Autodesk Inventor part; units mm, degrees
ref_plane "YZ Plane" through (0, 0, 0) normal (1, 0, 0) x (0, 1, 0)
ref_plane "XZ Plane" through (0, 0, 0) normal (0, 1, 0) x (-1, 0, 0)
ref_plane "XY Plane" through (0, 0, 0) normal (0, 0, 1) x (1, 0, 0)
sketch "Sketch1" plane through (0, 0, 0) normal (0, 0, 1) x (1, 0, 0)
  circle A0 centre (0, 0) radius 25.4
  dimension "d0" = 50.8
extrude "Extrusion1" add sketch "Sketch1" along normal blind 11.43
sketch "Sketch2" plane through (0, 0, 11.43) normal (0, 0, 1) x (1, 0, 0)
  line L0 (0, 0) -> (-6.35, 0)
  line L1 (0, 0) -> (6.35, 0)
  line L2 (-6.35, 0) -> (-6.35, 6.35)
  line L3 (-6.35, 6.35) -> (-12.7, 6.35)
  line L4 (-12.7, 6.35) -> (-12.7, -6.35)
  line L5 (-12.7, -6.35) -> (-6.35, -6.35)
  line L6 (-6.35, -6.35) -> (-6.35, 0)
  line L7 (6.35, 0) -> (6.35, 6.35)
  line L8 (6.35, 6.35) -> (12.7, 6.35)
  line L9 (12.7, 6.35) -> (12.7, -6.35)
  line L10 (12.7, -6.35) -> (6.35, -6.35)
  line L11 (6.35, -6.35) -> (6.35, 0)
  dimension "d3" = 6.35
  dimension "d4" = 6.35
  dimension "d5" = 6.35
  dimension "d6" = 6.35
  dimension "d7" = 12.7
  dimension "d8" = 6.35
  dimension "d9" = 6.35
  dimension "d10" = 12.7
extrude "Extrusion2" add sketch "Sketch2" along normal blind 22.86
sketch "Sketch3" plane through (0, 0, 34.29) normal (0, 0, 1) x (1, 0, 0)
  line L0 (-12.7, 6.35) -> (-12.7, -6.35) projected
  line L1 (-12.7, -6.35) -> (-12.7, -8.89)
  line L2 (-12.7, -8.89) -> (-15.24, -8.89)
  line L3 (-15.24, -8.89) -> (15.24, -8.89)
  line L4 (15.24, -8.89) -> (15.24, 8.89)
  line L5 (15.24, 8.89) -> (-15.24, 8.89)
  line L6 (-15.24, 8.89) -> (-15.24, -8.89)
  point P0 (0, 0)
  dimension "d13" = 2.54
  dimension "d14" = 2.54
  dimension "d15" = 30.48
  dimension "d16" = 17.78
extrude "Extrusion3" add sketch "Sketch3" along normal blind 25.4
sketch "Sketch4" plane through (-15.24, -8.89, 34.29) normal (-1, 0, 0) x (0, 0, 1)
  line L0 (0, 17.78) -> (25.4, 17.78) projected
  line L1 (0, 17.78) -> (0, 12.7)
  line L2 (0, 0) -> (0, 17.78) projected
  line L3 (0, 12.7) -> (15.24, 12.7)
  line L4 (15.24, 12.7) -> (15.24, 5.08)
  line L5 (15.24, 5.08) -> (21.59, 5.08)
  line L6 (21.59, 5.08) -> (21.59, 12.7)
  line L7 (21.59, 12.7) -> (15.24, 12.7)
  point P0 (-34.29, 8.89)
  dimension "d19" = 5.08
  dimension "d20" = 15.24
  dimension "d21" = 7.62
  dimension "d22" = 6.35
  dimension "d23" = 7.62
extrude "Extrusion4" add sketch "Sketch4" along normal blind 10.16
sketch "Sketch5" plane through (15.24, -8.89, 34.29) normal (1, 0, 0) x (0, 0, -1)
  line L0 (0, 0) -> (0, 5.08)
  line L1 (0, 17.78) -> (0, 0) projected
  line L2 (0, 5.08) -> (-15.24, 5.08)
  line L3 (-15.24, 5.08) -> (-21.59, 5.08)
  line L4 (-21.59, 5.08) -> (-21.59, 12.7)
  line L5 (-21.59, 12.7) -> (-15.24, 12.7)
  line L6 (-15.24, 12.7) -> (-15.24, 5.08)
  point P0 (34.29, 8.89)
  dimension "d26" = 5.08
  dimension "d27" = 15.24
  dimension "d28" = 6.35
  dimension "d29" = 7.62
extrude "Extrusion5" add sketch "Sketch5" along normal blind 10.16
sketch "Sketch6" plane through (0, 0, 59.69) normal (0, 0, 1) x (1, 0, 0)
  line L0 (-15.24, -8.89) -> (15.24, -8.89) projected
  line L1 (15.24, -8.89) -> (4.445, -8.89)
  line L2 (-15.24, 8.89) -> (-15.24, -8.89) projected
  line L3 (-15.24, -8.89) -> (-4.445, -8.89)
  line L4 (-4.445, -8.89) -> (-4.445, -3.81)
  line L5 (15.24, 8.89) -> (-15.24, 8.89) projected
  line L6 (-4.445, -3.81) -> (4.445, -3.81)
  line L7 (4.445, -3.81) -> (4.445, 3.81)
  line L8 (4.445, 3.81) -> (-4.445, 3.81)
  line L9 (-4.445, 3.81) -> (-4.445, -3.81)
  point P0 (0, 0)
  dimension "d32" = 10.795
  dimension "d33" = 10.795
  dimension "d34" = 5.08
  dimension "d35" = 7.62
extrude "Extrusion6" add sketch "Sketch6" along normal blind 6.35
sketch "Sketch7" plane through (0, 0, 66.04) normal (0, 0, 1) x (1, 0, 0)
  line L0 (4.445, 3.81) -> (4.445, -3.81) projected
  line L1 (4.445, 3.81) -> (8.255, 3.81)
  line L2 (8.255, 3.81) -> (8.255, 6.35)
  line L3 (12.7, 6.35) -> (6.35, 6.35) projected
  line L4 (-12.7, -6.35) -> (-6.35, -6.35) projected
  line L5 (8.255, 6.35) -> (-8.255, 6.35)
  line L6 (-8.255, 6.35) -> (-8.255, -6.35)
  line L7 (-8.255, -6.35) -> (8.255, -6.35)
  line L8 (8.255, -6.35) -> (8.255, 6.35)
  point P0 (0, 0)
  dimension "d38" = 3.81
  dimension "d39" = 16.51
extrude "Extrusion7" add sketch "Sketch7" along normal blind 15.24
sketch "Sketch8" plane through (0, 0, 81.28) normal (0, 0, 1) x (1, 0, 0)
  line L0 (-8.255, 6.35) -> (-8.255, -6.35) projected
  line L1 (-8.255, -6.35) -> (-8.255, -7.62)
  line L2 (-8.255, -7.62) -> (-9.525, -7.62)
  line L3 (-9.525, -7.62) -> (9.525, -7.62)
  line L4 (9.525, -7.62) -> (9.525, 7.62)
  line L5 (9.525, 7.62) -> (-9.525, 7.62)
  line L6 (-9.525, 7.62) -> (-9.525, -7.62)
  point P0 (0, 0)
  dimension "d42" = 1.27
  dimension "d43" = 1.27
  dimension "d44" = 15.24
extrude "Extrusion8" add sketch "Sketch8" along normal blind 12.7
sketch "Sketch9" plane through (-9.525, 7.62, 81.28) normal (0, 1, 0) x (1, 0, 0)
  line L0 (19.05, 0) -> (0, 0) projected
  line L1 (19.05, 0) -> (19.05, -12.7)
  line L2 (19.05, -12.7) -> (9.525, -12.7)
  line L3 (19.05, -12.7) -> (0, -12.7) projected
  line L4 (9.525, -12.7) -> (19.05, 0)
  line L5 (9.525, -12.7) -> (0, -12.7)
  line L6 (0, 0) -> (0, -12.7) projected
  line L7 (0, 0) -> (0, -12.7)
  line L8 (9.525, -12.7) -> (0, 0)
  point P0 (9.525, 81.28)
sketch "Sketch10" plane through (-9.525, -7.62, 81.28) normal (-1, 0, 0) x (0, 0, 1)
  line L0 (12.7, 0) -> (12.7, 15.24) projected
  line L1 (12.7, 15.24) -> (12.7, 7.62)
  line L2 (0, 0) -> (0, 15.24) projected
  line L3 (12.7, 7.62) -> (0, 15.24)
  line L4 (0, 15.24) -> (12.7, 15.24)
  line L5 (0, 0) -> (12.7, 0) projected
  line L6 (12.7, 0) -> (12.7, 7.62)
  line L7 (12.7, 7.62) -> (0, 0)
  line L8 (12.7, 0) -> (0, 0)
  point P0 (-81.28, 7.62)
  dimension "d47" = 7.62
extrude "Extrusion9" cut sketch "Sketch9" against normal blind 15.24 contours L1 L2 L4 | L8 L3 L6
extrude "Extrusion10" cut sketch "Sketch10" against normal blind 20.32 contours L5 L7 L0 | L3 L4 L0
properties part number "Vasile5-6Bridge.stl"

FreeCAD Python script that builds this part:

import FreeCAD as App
import Part
import Sketcher
Q = App.Units.Quantity

doc = App.newDocument("Part")
body = doc.addObject("PartDesign::Body", "Body")

# Sketch on XY plane
sketch1 = body.newObject("Sketcher::SketchObject", "Sketch")
sketch1.AttachmentSupport = (doc.getObject("XY_Plane"), [""])
sketch1.MapMode = "FlatFace"
sketch1.addGeometry(Part.Circle(App.Vector(0, 0, 0), App.Vector(0, 0, 1), 25.4), False)
sketch1.addConstraint(Sketcher.Constraint("Coincident", 0, 3, -1, 1))
sketch1.addConstraint(Sketcher.Constraint("Diameter", 0, Q("2 in")))
pad1 = body.newObject("PartDesign::Pad", "Pad")
pad1.Profile = sketch1
pad1.Length = Q("0.45 in")

# Sketch on XY plane
sketch2 = body.newObject("Sketcher::SketchObject", "Sketch001")
sketch2.AttachmentSupport = (doc.getObject("XY_Plane"), [""])
sketch2.MapMode = "FlatFace"
sketch2.AttachmentOffset = App.Placement(App.Vector(0, 0, 0.45 * 25.4), App.Rotation())
sketch2.addGeometry(Part.LineSegment(App.Vector(-6.35, -6.35, 0), App.Vector(-6.35, 6.35, 0)), False)
sketch2.addGeometry(Part.LineSegment(App.Vector(-6.35, 6.35, 0), App.Vector(-12.7, 6.35, 0)), False)
sketch2.addGeometry(Part.LineSegment(App.Vector(-12.7, 6.35, 0), App.Vector(-12.7, -6.35, 0)), False)
sketch2.addGeometry(Part.LineSegment(App.Vector(-12.7, -6.35, 0), App.Vector(-6.35, -6.35, 0)), False)
sketch2.addGeometry(Part.LineSegment(App.Vector(6.35, 6.35, 0), App.Vector(6.35, -6.35, 0)), False)
sketch2.addGeometry(Part.LineSegment(App.Vector(6.35, -6.35, 0), App.Vector(12.7, -6.35, 0)), False)
sketch2.addGeometry(Part.LineSegment(App.Vector(12.7, -6.35, 0), App.Vector(12.7, 6.35, 0)), False)
sketch2.addGeometry(Part.LineSegment(App.Vector(12.7, 6.35, 0), App.Vector(6.35, 6.35, 0)), False)
sketch2.addConstraint(Sketcher.Constraint("Coincident", 0, 2, 1, 1))
sketch2.addConstraint(Sketcher.Constraint("Coincident", 1, 2, 2, 1))
sketch2.addConstraint(Sketcher.Constraint("Coincident", 2, 2, 3, 1))
sketch2.addConstraint(Sketcher.Constraint("Coincident", 3, 2, 0, 1))
sketch2.addConstraint(Sketcher.Constraint("Coincident", 4, 2, 5, 1))
sketch2.addConstraint(Sketcher.Constraint("Coincident", 5, 2, 6, 1))
sketch2.addConstraint(Sketcher.Constraint("Coincident", 6, 2, 7, 1))
sketch2.addConstraint(Sketcher.Constraint("Coincident", 7, 2, 4, 1))
sketch2.addConstraint(Sketcher.Constraint("Vertical", 0))
sketch2.addConstraint(Sketcher.Constraint("Horizontal", 1))
sketch2.addConstraint(Sketcher.Constraint("Vertical", 2))
sketch2.addConstraint(Sketcher.Constraint("Horizontal", 3))
sketch2.addConstraint(Sketcher.Constraint("Vertical", 4))
sketch2.addConstraint(Sketcher.Constraint("Horizontal", 5))
sketch2.addConstraint(Sketcher.Constraint("Vertical", 6))
sketch2.addConstraint(Sketcher.Constraint("Horizontal", 7))
sketch2.addConstraint(Sketcher.Constraint("Symmetric", 0, 2, 4, 2, -1, 1))
sketch2.addConstraint(Sketcher.Constraint("Symmetric", 2, 2, 6, 2, -1, 1))
sketch2.addConstraint(Sketcher.Constraint("Horizontal", 3, 2, 4, 2))
sketch2.addConstraint(Sketcher.Constraint("DistanceY", 0, 1, 0, 2, Q("0.5 in")))
sketch2.addConstraint(Sketcher.Constraint("DistanceX", 1, 2, 1, 1, Q("0.25 in")))
sketch2.addConstraint(Sketcher.Constraint("DistanceX", 1, 2, -1, 1, Q("0.5 in")))
pad2 = body.newObject("PartDesign::Pad", "Pad001")
pad2.Profile = sketch2
pad2.Length = Q("0.9 in")

# Sketch on XY plane
sketch3 = body.newObject("Sketcher::SketchObject", "Sketch002")
sketch3.AttachmentSupport = (doc.getObject("XY_Plane"), [""])
sketch3.MapMode = "FlatFace"
sketch3.AttachmentOffset = App.Placement(App.Vector(0, 0, 1.35 * 25.4), App.Rotation())
sketch3.addGeometry(Part.LineSegment(App.Vector(-15.24, -8.89, 0), App.Vector(15.24, -8.89, 0)), False)
sketch3.addGeometry(Part.LineSegment(App.Vector(15.24, -8.89, 0), App.Vector(15.24, 8.89, 0)), False)
sketch3.addGeometry(Part.LineSegment(App.Vector(15.24, 8.89, 0), App.Vector(-15.24, 8.89, 0)), False)
sketch3.addGeometry(Part.LineSegment(App.Vector(-15.24, 8.89, 0), App.Vector(-15.24, -8.89, 0)), False)
sketch3.addConstraint(Sketcher.Constraint("Coincident", 0, 2, 1, 1))
sketch3.addConstraint(Sketcher.Constraint("Coincident", 1, 2, 2, 1))
sketch3.addConstraint(Sketcher.Constraint("Coincident", 2, 2, 3, 1))
sketch3.addConstraint(Sketcher.Constraint("Coincident", 3, 2, 0, 1))
sketch3.addConstraint(Sketcher.Constraint("Horizontal", 0))
sketch3.addConstraint(Sketcher.Constraint("Vertical", 1))
sketch3.addConstraint(Sketcher.Constraint("Horizontal", 2))
sketch3.addConstraint(Sketcher.Constraint("Vertical", 3))
sketch3.addConstraint(Sketcher.Constraint("Symmetric", 0, 2, 2, 2, -1, 1))
sketch3.addConstraint(Sketcher.Constraint("DistanceX", 0, 1, 0, 2, Q("1.2 in")))
sketch3.addConstraint(Sketcher.Constraint("DistanceY", 1, 1, 1, 2, Q("0.7 in")))
pad3 = body.newObject("PartDesign::Pad", "Pad002")
pad3.Profile = sketch3
pad3.Length = Q("1 in")

# Sketch on YZ plane
sketch4 = body.newObject("Sketcher::SketchObject", "Sketch003")
sketch4.AttachmentSupport = (doc.getObject("YZ_Plane"), [""])
sketch4.MapMode = "FlatFace"
sketch4.AttachmentOffset = App.Placement(App.Vector(0, 0, -0.6 * 25.4), App.Rotation())
sketch4.addGeometry(Part.LineSegment(App.Vector(3.81, 55.88, 0), App.Vector(3.81, 49.53, 0)), False)
sketch4.addGeometry(Part.LineSegment(App.Vector(3.81, 49.53, 0), App.Vector(-3.81, 49.53, 0)), False)
sketch4.addGeometry(Part.LineSegment(App.Vector(-3.81, 49.53, 0), App.Vector(-3.81, 55.88, 0)), False)
sketch4.addGeometry(Part.LineSegment(App.Vector(-3.81, 55.88, 0), App.Vector(3.81, 55.88, 0)), False)
sketch4.addConstraint(Sketcher.Constraint("Coincident", 0, 2, 1, 1))
sketch4.addConstraint(Sketcher.Constraint("Coincident", 1, 2, 2, 1))
sketch4.addConstraint(Sketcher.Constraint("Coincident", 2, 2, 3, 1))
sketch4.addConstraint(Sketcher.Constraint("Coincident", 3, 2, 0, 1))
sketch4.addConstraint(Sketcher.Constraint("Vertical", 0))
sketch4.addConstraint(Sketcher.Constraint("Horizontal", 1))
sketch4.addConstraint(Sketcher.Constraint("Vertical", 2))
sketch4.addConstraint(Sketcher.Constraint("Horizontal", 3))
sketch4.addConstraint(Sketcher.Constraint("DistanceX", 1, 2, 1, 1, Q("0.3 in")))
sketch4.addConstraint(Sketcher.Constraint("DistanceY", 0, 2, 0, 1, Q("0.25 in")))
sketch4.addConstraint(Sketcher.Constraint("DistanceY", -1, 1, 2, 2, Q("2.2 in")))
sketch4.addConstraint(Sketcher.Constraint("DistanceX", -1, 1, 0, 2, Q("0.15 in")))
pad4 = body.newObject("PartDesign::Pad", "Pad003")
pad4.Profile = sketch4
pad4.Length = Q("0.4 in")
pad4.Reversed = True

# Sketch on YZ plane
sketch5 = body.newObject("Sketcher::SketchObject", "Sketch004")
sketch5.AttachmentSupport = (doc.getObject("YZ_Plane"), [""])
sketch5.MapMode = "FlatFace"
sketch5.AttachmentOffset = App.Placement(App.Vector(0, 0, 0.6 * 25.4), App.Rotation())
sketch5.addGeometry(Part.LineSegment(App.Vector(-3.81, 55.88, 0), App.Vector(-3.81, 49.53, 0)), False)
sketch5.addGeometry(Part.LineSegment(App.Vector(-3.81, 49.53, 0), App.Vector(3.81, 49.53, 0)), False)
sketch5.addGeometry(Part.LineSegment(App.Vector(3.81, 49.53, 0), App.Vector(3.81, 55.88, 0)), False)
sketch5.addGeometry(Part.LineSegment(App.Vector(3.81, 55.88, 0), App.Vector(-3.81, 55.88, 0)), False)
sketch5.addConstraint(Sketcher.Constraint("Coincident", 0, 2, 1, 1))
sketch5.addConstraint(Sketcher.Constraint("Coincident", 1, 2, 2, 1))
sketch5.addConstraint(Sketcher.Constraint("Coincident", 2, 2, 3, 1))
sketch5.addConstraint(Sketcher.Constraint("Coincident", 3, 2, 0, 1))
sketch5.addConstraint(Sketcher.Constraint("Vertical", 0))
sketch5.addConstraint(Sketcher.Constraint("Horizontal", 1))
sketch5.addConstraint(Sketcher.Constraint("Vertical", 2))
sketch5.addConstraint(Sketcher.Constraint("Horizontal", 3))
sketch5.addConstraint(Sketcher.Constraint("DistanceX", 1, 1, 1, 2, Q("0.3 in")))
sketch5.addConstraint(Sketcher.Constraint("DistanceY", 0, 2, 0, 1, Q("0.25 in")))
sketch5.addConstraint(Sketcher.Constraint("DistanceY", -1, 1, 2, 2, Q("2.2 in")))
sketch5.addConstraint(Sketcher.Constraint("DistanceX", 0, 2, -1, 1, Q("0.15 in")))
pad5 = body.newObject("PartDesign::Pad", "Pad004")
pad5.Profile = sketch5
pad5.Length = Q("0.4 in")

# Sketch on XY plane
sketch6 = body.newObject("Sketcher::SketchObject", "Sketch005")
sketch6.AttachmentSupport = (doc.getObject("XY_Plane"), [""])
sketch6.MapMode = "FlatFace"
sketch6.AttachmentOffset = App.Placement(App.Vector(0, 0, 2.35 * 25.4), App.Rotation())
sketch6.addGeometry(Part.LineSegment(App.Vector(-4.445, 3.81, 0), App.Vector(-4.445, -3.81, 0)), False)
sketch6.addGeometry(Part.LineSegment(App.Vector(-4.445, -3.81, 0), App.Vector(4.445, -3.81, 0)), False)
sketch6.addGeometry(Part.LineSegment(App.Vector(4.445, -3.81, 0), App.Vector(4.445, 3.81, 0)), False)
sketch6.addGeometry(Part.LineSegment(App.Vector(4.445, 3.81, 0), App.Vector(-4.445, 3.81, 0)), False)
sketch6.addConstraint(Sketcher.Constraint("Coincident", 0, 2, 1, 1))
sketch6.addConstraint(Sketcher.Constraint("Coincident", 1, 2, 2, 1))
sketch6.addConstraint(Sketcher.Constraint("Coincident", 2, 2, 3, 1))
sketch6.addConstraint(Sketcher.Constraint("Coincident", 3, 2, 0, 1))
sketch6.addConstraint(Sketcher.Constraint("Vertical", 0))
sketch6.addConstraint(Sketcher.Constraint("Horizontal", 1))
sketch6.addConstraint(Sketcher.Constraint("Vertical", 2))
sketch6.addConstraint(Sketcher.Constraint("Horizontal", 3))
sketch6.addConstraint(Sketcher.Constraint("Symmetric", 0, 2, 2, 2, -1, 1))
sketch6.addConstraint(Sketcher.Constraint("DistanceY", 0, 2, 0, 1, Q("0.3 in")))
sketch6.addConstraint(Sketcher.Constraint("DistanceX", 1, 1, 1, 2, Q("0.35 in")))
pad6 = body.newObject("PartDesign::Pad", "Pad005")
pad6.Profile = sketch6
pad6.Length = Q("0.25 in")

# Sketch on XY plane
sketch7 = body.newObject("Sketcher::SketchObject", "Sketch006")
sketch7.AttachmentSupport = (doc.getObject("XY_Plane"), [""])
sketch7.MapMode = "FlatFace"
sketch7.AttachmentOffset = App.Placement(App.Vector(0, 0, 2.6 * 25.4), App.Rotation())
sketch7.addGeometry(Part.LineSegment(App.Vector(8.255, -6.35, 0), App.Vector(8.255, 6.35, 0)), False)
sketch7.addGeometry(Part.LineSegment(App.Vector(8.255, 6.35, 0), App.Vector(-8.255, 6.35, 0)), False)
sketch7.addGeometry(Part.LineSegment(App.Vector(-8.255, 6.35, 0), App.Vector(-8.255, -6.35, 0)), False)
sketch7.addGeometry(Part.LineSegment(App.Vector(-8.255, -6.35, 0), App.Vector(8.255, -6.35, 0)), False)
sketch7.addConstraint(Sketcher.Constraint("Coincident", 0, 2, 1, 1))
sketch7.addConstraint(Sketcher.Constraint("Coincident", 1, 2, 2, 1))
sketch7.addConstraint(Sketcher.Constraint("Coincident", 2, 2, 3, 1))
sketch7.addConstraint(Sketcher.Constraint("Coincident", 3, 2, 0, 1))
sketch7.addConstraint(Sketcher.Constraint("Vertical", 0))
sketch7.addConstraint(Sketcher.Constraint("Horizontal", 1))
sketch7.addConstraint(Sketcher.Constraint("Vertical", 2))
sketch7.addConstraint(Sketcher.Constraint("Horizontal", 3))
sketch7.addConstraint(Sketcher.Constraint("Symmetric", 0, 2, 2, 2, -1, 1))
sketch7.addConstraint(Sketcher.Constraint("DistanceX", 1, 2, 1, 1, Q("0.65 in")))
sketch7.addConstraint(Sketcher.Constraint("DistanceY", 0, 1, 0, 2, Q("0.5 in")))
pad7 = body.newObject("PartDesign::Pad", "Pad006")
pad7.Profile = sketch7
pad7.Length = Q("0.6 in")

# Sketch on XY plane
sketch8 = body.newObject("Sketcher::SketchObject", "Sketch007")
sketch8.AttachmentSupport = (doc.getObject("XY_Plane"), [""])
sketch8.MapMode = "FlatFace"
sketch8.AttachmentOffset = App.Placement(App.Vector(0, 0, 3.2 * 25.4), App.Rotation())
sketch8.addGeometry(Part.LineSegment(App.Vector(-9.525, -7.62, 0), App.Vector(9.525, -7.62, 0)), False)
sketch8.addGeometry(Part.LineSegment(App.Vector(9.525, -7.62, 0), App.Vector(9.525, 7.62, 0)), False)
sketch8.addGeometry(Part.LineSegment(App.Vector(9.525, 7.62, 0), App.Vector(-9.525, 7.62, 0)), False)
sketch8.addGeometry(Part.LineSegment(App.Vector(-9.525, 7.62, 0), App.Vector(-9.525, -7.62, 0)), False)
sketch8.addConstraint(Sketcher.Constraint("Coincident", 0, 2, 1, 1))
sketch8.addConstraint(Sketcher.Constraint("Coincident", 1, 2, 2, 1))
sketch8.addConstraint(Sketcher.Constraint("Coincident", 2, 2, 3, 1))
sketch8.addConstraint(Sketcher.Constraint("Coincident", 3, 2, 0, 1))
sketch8.addConstraint(Sketcher.Constraint("Horizontal", 0))
sketch8.addConstraint(Sketcher.Constraint("Vertical", 1))
sketch8.addConstraint(Sketcher.Constraint("Horizontal", 2))
sketch8.addConstraint(Sketcher.Constraint("Vertical", 3))
sketch8.addConstraint(Sketcher.Constraint("Symmetric", 0, 2, 2, 2, -1, 1))
sketch8.addConstraint(Sketcher.Constraint("DistanceY", 1, 1, 1, 2, Q("0.6 in")))
sketch8.addConstraint(Sketcher.Constraint("DistanceX", 0, 1, 0, 2, Q("0.75 in")))
pad8 = body.newObject("PartDesign::Pad", "Pad007")
pad8.Profile = sketch8
pad8.Length = Q("0.5 in")

# Sketch on XZ plane
sketch9 = body.newObject("Sketcher::SketchObject", "Sketch008")
sketch9.AttachmentSupport = (doc.getObject("XZ_Plane"), [""])
sketch9.MapMode = "FlatFace"
sketch9.AttachmentOffset = App.Placement(App.Vector(0, 0, -0.3 * 25.4), App.Rotation())
sketch9.addGeometry(Part.LineSegment(App.Vector(9.525, 93.98, 0), App.Vector(9.525, 81.28, 0)), False)
sketch9.addGeometry(Part.LineSegment(App.Vector(9.525, 81.28, 0), App.Vector(0, 93.98, 0)), False)
sketch9.addGeometry(Part.LineSegment(App.Vector(0, 93.98, 0), App.Vector(9.525, 93.98, 0)), False)
sketch9.addGeometry(Part.LineSegment(App.Vector(0, 93.98, 0), App.Vector(-9.525, 81.28, 0)), False)
sketch9.addGeometry(Part.LineSegment(App.Vector(-9.525, 81.28, 0), App.Vector(-9.525, 93.98, 0)), False)
sketch9.addGeometry(Part.LineSegment(App.Vector(-9.525, 93.98, 0), App.Vector(0, 93.98, 0)), False)
sketch9.addConstraint(Sketcher.Constraint("Coincident", 0, 2, 1, 1))
sketch9.addConstraint(Sketcher.Constraint("Coincident", 1, 2, 2, 1))
sketch9.addConstraint(Sketcher.Constraint("Coincident", 2, 2, 0, 1))
sketch9.addConstraint(Sketcher.Constraint("Coincident", 3, 2, 4, 1))
sketch9.addConstraint(Sketcher.Constraint("Coincident", 4, 2, 5, 1))
sketch9.addConstraint(Sketcher.Constraint("Coincident", 5, 2, 3, 1))
sketch9.addConstraint(Sketcher.Constraint("Vertical", 0))
sketch9.addConstraint(Sketcher.Constraint("Horizontal", 2))
sketch9.addConstraint(Sketcher.Constraint("Vertical", 4))
sketch9.addConstraint(Sketcher.Constraint("Horizontal", 5))
sketch9.addConstraint(Sketcher.Constraint("Coincident", 5, 2, 1, 2))
sketch9.addConstraint(Sketcher.Constraint("Symmetric", 0, 2, 3, 2, -2))
sketch9.addConstraint(Sketcher.Constraint("PointOnObject", 1, 2, -2))
sketch9.addConstraint(Sketcher.Constraint("DistanceY", 0, 2, 0, 1, Q("0.5 in")))
sketch9.addConstraint(Sketcher.Constraint("DistanceY", -1, 1, 0, 2, Q("3.2 in")))
sketch9.addConstraint(Sketcher.Constraint("DistanceX", 2, 1, 2, 2, Q("0.375 in")))
pocket1 = body.newObject("PartDesign::Pocket", "Pocket")
pocket1.Profile = sketch9
pocket1.Length = Q("0.6 in")
pocket1.Reversed = True

# Sketch on YZ plane
sketch10 = body.newObject("Sketcher::SketchObject", "Sketch009")
sketch10.AttachmentSupport = (doc.getObject("YZ_Plane"), [""])
sketch10.MapMode = "FlatFace"
sketch10.AttachmentOffset = App.Placement(App.Vector(0, 0, -0.375 * 25.4), App.Rotation())
sketch10.addGeometry(Part.LineSegment(App.Vector(-7.62, 81.28, 0), App.Vector(-7.62, 93.98, 0)), False)
sketch10.addGeometry(Part.LineSegment(App.Vector(-7.62, 93.98, 0), App.Vector(0, 93.98, 0)), False)
sketch10.addGeometry(Part.LineSegment(App.Vector(0, 93.98, 0), App.Vector(-7.62, 81.28, 0)), False)
sketch10.addGeometry(Part.LineSegment(App.Vector(7.62, 81.28, 0), App.Vector(0, 93.98, 0)), False)
sketch10.addGeometry(Part.LineSegment(App.Vector(0, 93.98, 0), App.Vector(7.62, 93.98, 0)), False)
sketch10.addGeometry(Part.LineSegment(App.Vector(7.62, 93.98, 0), App.Vector(7.62, 81.28, 0)), False)
sketch10.addConstraint(Sketcher.Constraint("Coincident", 0, 2, 1, 1))
sketch10.addConstraint(Sketcher.Constraint("Coincident", 1, 2, 2, 1))
sketch10.addConstraint(Sketcher.Constraint("Coincident", 2, 2, 0, 1))
sketch10.addConstraint(Sketcher.Constraint("Coincident", 3, 2, 4, 1))
sketch10.addConstraint(Sketcher.Constraint("Coincident", 4, 2, 5, 1))
sketch10.addConstraint(Sketcher.Constraint("Coincident", 5, 2, 3, 1))
sketch10.addConstraint(Sketcher.Constraint("Vertical", 0))
sketch10.addConstraint(Sketcher.Constraint("Horizontal", 1))
sketch10.addConstraint(Sketcher.Constraint("Horizontal", 4))
sketch10.addConstraint(Sketcher.Constraint("Vertical", 5))
sketch10.addConstraint(Sketcher.Constraint("Coincident", 3, 2, 1, 2))
sketch10.addConstraint(Sketcher.Constraint("Symmetric", 2, 2, 5, 2, -2))
sketch10.addConstraint(Sketcher.Constraint("PointOnObject", 1, 2, -2))
sketch10.addConstraint(Sketcher.Constraint("DistanceX", 1, 1, 1, 2, Q("0.3 in")))
sketch10.addConstraint(Sketcher.Constraint("DistanceY", 0, 1, 0, 2, Q("0.5 in")))
sketch10.addConstraint(Sketcher.Constraint("DistanceY", -1, 1, 0, 2, Q("3.7 in")))
pocket2 = body.newObject("PartDesign::Pocket", "Pocket001")
pocket2.Profile = sketch10
pocket2.Length = Q("0.8 in")
pocket2.Reversed = True

doc.recompute()
